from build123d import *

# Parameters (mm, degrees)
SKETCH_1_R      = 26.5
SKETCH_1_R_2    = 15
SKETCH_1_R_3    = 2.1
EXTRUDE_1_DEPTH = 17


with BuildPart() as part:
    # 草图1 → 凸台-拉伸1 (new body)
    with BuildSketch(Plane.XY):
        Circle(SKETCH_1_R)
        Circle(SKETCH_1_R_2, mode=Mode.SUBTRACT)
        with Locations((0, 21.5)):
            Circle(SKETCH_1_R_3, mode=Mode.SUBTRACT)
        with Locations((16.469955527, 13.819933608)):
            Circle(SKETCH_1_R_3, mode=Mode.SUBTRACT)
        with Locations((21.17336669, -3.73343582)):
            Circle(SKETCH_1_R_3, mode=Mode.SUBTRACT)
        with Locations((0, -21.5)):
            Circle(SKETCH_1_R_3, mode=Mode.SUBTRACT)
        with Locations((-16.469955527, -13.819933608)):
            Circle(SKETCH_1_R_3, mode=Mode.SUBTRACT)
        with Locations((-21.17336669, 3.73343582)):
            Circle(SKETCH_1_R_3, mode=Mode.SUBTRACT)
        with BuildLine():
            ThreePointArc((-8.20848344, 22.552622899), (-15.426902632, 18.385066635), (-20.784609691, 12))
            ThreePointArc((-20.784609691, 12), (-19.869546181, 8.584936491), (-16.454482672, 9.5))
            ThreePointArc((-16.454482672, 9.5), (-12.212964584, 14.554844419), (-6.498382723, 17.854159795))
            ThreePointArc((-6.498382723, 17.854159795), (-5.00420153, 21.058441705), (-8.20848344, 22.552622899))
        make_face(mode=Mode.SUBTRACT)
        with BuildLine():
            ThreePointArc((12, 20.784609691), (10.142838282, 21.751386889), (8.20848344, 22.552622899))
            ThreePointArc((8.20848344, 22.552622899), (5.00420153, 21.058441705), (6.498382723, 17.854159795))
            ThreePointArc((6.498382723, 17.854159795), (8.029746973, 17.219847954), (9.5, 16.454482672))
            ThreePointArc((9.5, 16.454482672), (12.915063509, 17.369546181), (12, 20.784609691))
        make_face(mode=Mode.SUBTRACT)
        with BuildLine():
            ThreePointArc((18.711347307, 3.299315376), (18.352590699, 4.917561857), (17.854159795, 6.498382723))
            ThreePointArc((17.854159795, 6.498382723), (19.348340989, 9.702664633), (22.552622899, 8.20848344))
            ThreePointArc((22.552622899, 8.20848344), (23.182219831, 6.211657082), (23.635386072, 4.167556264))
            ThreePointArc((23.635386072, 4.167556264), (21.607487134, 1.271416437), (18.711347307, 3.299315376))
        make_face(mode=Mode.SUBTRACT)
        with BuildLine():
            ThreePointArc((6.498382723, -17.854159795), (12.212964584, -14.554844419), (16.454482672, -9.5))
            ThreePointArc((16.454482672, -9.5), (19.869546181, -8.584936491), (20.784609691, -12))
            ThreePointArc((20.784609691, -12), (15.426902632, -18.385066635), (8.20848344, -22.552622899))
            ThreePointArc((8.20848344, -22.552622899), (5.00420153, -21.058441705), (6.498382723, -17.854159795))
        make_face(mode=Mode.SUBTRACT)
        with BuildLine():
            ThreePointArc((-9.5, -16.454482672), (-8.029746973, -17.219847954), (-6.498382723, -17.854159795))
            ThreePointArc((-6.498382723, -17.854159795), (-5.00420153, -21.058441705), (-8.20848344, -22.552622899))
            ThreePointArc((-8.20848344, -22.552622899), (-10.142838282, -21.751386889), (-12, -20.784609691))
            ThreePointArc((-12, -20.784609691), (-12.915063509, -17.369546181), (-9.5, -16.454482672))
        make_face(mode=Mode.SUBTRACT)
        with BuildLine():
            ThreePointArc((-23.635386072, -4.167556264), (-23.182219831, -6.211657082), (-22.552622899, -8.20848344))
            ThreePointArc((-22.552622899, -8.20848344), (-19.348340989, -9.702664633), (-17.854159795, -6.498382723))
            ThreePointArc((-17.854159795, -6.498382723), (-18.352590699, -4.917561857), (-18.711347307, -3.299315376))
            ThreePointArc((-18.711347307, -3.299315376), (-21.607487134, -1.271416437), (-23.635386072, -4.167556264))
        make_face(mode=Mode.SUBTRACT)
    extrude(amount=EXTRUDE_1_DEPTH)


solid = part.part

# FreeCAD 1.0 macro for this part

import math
import FreeCAD as App
import Part
import Sketcher

doc = App.newDocument("Part")
body = doc.addObject("PartDesign::Body", "Body")

# Sketch on XY plane
sketch1 = body.newObject("Sketcher::SketchObject", "Sketch")
sketch1.AttachmentSupport = (doc.getObject("XY_Plane"), [""])
sketch1.MapMode = "FlatFace"
sketch1.addGeometry([
    Part.Circle(App.Vector(0, 0, 0), App.Vector(0, 0, 1), 26.5),  # 0
    Part.Circle(App.Vector(-16.5, -13.8, 0), App.Vector(0, 0, 1), 2.1),  # 1
    Part.ArcOfCircle(Part.Circle(App.Vector(-10.8, -18.6, 0), App.Vector(0, 0, 1), 2.5), math.radians(60), math.radians(240)),  # 2
    Part.ArcOfCircle(Part.Circle(App.Vector(0, 0, 0), App.Vector(0, 0, 1), 19), math.radians(-120), math.radians(-110)),  # 3
    Part.ArcOfCircle(Part.Circle(App.Vector(-7.4, -20.2, 0), App.Vector(0, 0, 1), 2.5), math.radians(-110), math.radians(70)),  # 4
    Part.ArcOfCircle(Part.Circle(App.Vector(0, 0, 0), App.Vector(0, 0, 1), 24), math.radians(-120), math.radians(-110)),  # 5
    Part.ArcOfCircle(Part.Circle(App.Vector(0, 0, 0), App.Vector(0, 0, 1), 24), math.radians(-170), math.radians(-160)),  # 6
    Part.ArcOfCircle(Part.Circle(App.Vector(-21.2, -3.7, 0), App.Vector(0, 0, 1), 2.5), math.radians(10), math.radians(190)),  # 7
    Part.ArcOfCircle(Part.Circle(App.Vector(0, 0, 0), App.Vector(0, 0, 1), 19), math.radians(-170), math.radians(-160)),  # 8
    Part.ArcOfCircle(Part.Circle(App.Vector(-20.2, -7.4, 0), App.Vector(0, 0, 1), 2.5), math.radians(-160), math.radians(20)),  # 9
    Part.Circle(App.Vector(0, -21.5, 0), App.Vector(0, 0, 1), 2.1),  # 10
    Part.ArcOfCircle(Part.Circle(App.Vector(7.4, -20.2, 0), App.Vector(0, 0, 1), 2.5), math.radians(110), math.radians(290)),  # 11
    Part.ArcOfCircle(Part.Circle(App.Vector(0, 0, 0), App.Vector(0, 0, 1), 19), math.radians(-70), math.radians(-30)),  # 12
    Part.ArcOfCircle(Part.Circle(App.Vector(18.6, -10.8, 0), App.Vector(0, 0, 1), 2.5), math.radians(-30), math.radians(150)),  # 13
    Part.ArcOfCircle(Part.Circle(App.Vector(0, 0, 0), App.Vector(0, 0, 1), 24), math.radians(-70), math.radians(-30)),  # 14
    Part.Circle(App.Vector(21.2, -3.7, 0), App.Vector(0, 0, 1), 2.1),  # 15
    Part.Circle(App.Vector(-21.2, 3.7, 0), App.Vector(0, 0, 1), 2.1),  # 16
    Part.ArcOfCircle(Part.Circle(App.Vector(0, 0, 0), App.Vector(0, 0, 1), 24), math.radians(110), math.radians(150)),  # 17
    Part.ArcOfCircle(Part.Circle(App.Vector(-7.4, 20.2, 0), App.Vector(0, 0, 1), 2.5), math.radians(-70), math.radians(110)),  # 18
    Part.ArcOfCircle(Part.Circle(App.Vector(0, 0, 0), App.Vector(0, 0, 1), 19), math.radians(110), math.radians(150)),  # 19
    Part.ArcOfCircle(Part.Circle(App.Vector(-18.6, 10.8, 0), App.Vector(0, 0, 1), 2.5), math.radians(150), math.radians(330)),  # 20
    Part.Circle(App.Vector(0, 0, 0), App.Vector(0, 0, 1), 15),  # 21
    Part.ArcOfCircle(Part.Circle(App.Vector(21.2, 3.7, 0), App.Vector(0, 0, 1), 2.5), math.radians(-170), math.radians(10)),  # 22
    Part.ArcOfCircle(Part.Circle(App.Vector(0, 0, 0), App.Vector(0, 0, 1), 19), math.radians(10), math.radians(20)),  # 23
    Part.ArcOfCircle(Part.Circle(App.Vector(20.2, 7.4, 0), App.Vector(0, 0, 1), 2.5), math.radians(20), math.radians(200)),  # 24
    Part.ArcOfCircle(Part.Circle(App.Vector(0, 0, 0), App.Vector(0, 0, 1), 24), math.radians(10), math.radians(20)),  # 25
    Part.Circle(App.Vector(0, 21.5, 0), App.Vector(0, 0, 1), 2.1),  # 26
    Part.ArcOfCircle(Part.Circle(App.Vector(0, 0, 0), App.Vector(0, 0, 1), 24), math.radians(60), math.radians(70)),  # 27
    Part.ArcOfCircle(Part.Circle(App.Vector(10.8, 18.6, 0), App.Vector(0, 0, 1), 2.5), math.radians(-120), math.radians(60)),  # 28
    Part.ArcOfCircle(Part.Circle(App.Vector(0, 0, 0), App.Vector(0, 0, 1), 19), math.radians(60), math.radians(70)),  # 29
    Part.ArcOfCircle(Part.Circle(App.Vector(7.4, 20.2, 0), App.Vector(0, 0, 1), 2.5), math.radians(70), math.radians(250)),  # 30
    Part.Circle(App.Vector(16.5, 13.8, 0), App.Vector(0, 0, 1), 2.1),  # 31
], False)
sketch1.addConstraint([
    Sketcher.Constraint("Tangent", 2, 1, 3, 1),
    Sketcher.Constraint("Tangent", 3, 2, 4, 2),
    Sketcher.Constraint("Tangent", 4, 1, 5, 2),
    Sketcher.Constraint("Tangent", 5, 1, 2, 2),
    Sketcher.Constraint("Tangent", 6, 1, 7, 2),
    Sketcher.Constraint("Tangent", 7, 1, 8, 1),
    Sketcher.Constraint("Tangent", 8, 2, 9, 2),
    Sketcher.Constraint("Tangent", 9, 1, 6, 2),
    Sketcher.Constraint("Tangent", 11, 1, 12, 1),
    Sketcher.Constraint("Tangent", 12, 2, 13, 2),
    Sketcher.Constraint("Tangent", 13, 1, 14, 2),
    Sketcher.Constraint("Tangent", 14, 1, 11, 2),
    Sketcher.Constraint("Tangent", 17, 1, 18, 2),
    Sketcher.Constraint("Tangent", 18, 1, 19, 1),
    Sketcher.Constraint("Tangent", 19, 2, 20, 2),
    Sketcher.Constraint("Tangent", 20, 1, 17, 2),
    Sketcher.Constraint("Tangent", 22, 1, 23, 1),
    Sketcher.Constraint("Tangent", 23, 2, 24, 2),
    Sketcher.Constraint("Tangent", 24, 1, 25, 2),
    Sketcher.Constraint("Tangent", 25, 1, 22, 2),
    Sketcher.Constraint("Tangent", 27, 1, 28, 2),
    Sketcher.Constraint("Tangent", 28, 1, 29, 1),
    Sketcher.Constraint("Tangent", 29, 2, 30, 2),
    Sketcher.Constraint("Tangent", 30, 1, 27, 2),
    Sketcher.Constraint("Coincident", 0, 3, -1, 1),
    Sketcher.Constraint("Coincident", 3, 3, -1, 1),
    Sketcher.Constraint("Coincident", 5, 3, -1, 1),
    Sketcher.Constraint("Coincident", 6, 3, -1, 1),
    Sketcher.Constraint("Coincident", 8, 3, -1, 1),
    Sketcher.Constraint("Coincident", 12, 3, -1, 1),
    Sketcher.Constraint("Coincident", 14, 3, -1, 1),
    Sketcher.Constraint("Coincident", 17, 3, -1, 1),
    Sketcher.Constraint("Coincident", 19, 3, -1, 1),
    Sketcher.Constraint("Coincident", 21, 3, -1, 1),
    Sketcher.Constraint("Coincident", 23, 3, -1, 1),
    Sketcher.Constraint("Coincident", 25, 3, -1, 1),
    Sketcher.Constraint("Coincident", 27, 3, -1, 1),
    Sketcher.Constraint("Coincident", 29, 3, -1, 1),
    Sketcher.Constraint("Equal", 5, 6),
    Sketcher.Constraint("Equal", 4, 7),
    Sketcher.Constraint("Equal", 1, 10),
    Sketcher.Constraint("Equal", 9, 11),
    Sketcher.Constraint("Equal", 8, 12),
    Sketcher.Constraint("Equal", 10, 15),
    Sketcher.Constraint("Equal", 15, 16),
    Sketcher.Constraint("Equal", 14, 17),
    Sketcher.Constraint("Equal", 13, 18),
    Sketcher.Constraint("Equal", 20, 22),
    Sketcher.Constraint("Equal", 19, 23),
    Sketcher.Constraint("Equal", 16, 26),
    Sketcher.Constraint("Equal", 25, 27),
    Sketcher.Constraint("Equal", 24, 28),
    Sketcher.Constraint("Equal", 26, 31),
    Sketcher.Constraint("Symmetric", 15, 3, 16, 3, -1, 1),
    Sketcher.Constraint("Symmetric", 10, 3, 26, 3, -1, 1),
    Sketcher.Constraint("Symmetric", 1, 3, 31, 3, -1, 1),
    Sketcher.Constraint("Symmetric", 7, 3, 15, 3, -2),
    Sketcher.Constraint("PointOnObject", 10, 3, -2),
    Sketcher.Constraint("Horizontal", 4, 3, 11, 3),
    Sketcher.Constraint("Horizontal", 16, 3, 22, 3),
    Sketcher.Constraint("Horizontal", 18, 3, 30, 3),
    Sketcher.Constraint("Vertical", 4, 3, 18, 3),
    Sketcher.Constraint("Diameter", 0, 53.0),
    Sketcher.Constraint("Diameter", 21, 30.0),
    Sketcher.Constraint("Radius", 3, 19.0),
    Sketcher.Constraint("Radius", 5, 24.0),
    Sketcher.Constraint("Diameter", 1, 4.2),
    Sketcher.Constraint("DistanceX", 5, 1, -1, 1, 12.0),
    Sketcher.Constraint("DistanceY", 13, 1, -1, 1, 12.0),
    Sketcher.Constraint("DistanceY", -1, 1, 20, 1, 12.0),
    Sketcher.Constraint("DistanceX", -1, 1, 27, 1, 12.0),
    Sketcher.Constraint("DistanceY", 10, 3, -1, 1, 21.5),
    Sketcher.Constraint("DistanceX", 14, 1, 12, 2, 8.245999),
    Sketcher.Constraint("DistanceY", 1, 3, 9, 3, 6.466501),
    Sketcher.Constraint("DistanceY", 24, 3, 31, 3, 6.466501),
    Sketcher.Constraint("DistanceY", 9, 1, 8, 2, 1.710101),
    Sketcher.Constraint("DistanceX", 7, 3, 1, 3, 4.703411),
    Sketcher.Constraint("DistanceY", 2, 3, 7, 3, 14.88611),
])
pad1 = body.newObject("PartDesign::Pad", "Pad")
pad1.Profile = sketch1
pad1.Length = 17

doc.recompute()
